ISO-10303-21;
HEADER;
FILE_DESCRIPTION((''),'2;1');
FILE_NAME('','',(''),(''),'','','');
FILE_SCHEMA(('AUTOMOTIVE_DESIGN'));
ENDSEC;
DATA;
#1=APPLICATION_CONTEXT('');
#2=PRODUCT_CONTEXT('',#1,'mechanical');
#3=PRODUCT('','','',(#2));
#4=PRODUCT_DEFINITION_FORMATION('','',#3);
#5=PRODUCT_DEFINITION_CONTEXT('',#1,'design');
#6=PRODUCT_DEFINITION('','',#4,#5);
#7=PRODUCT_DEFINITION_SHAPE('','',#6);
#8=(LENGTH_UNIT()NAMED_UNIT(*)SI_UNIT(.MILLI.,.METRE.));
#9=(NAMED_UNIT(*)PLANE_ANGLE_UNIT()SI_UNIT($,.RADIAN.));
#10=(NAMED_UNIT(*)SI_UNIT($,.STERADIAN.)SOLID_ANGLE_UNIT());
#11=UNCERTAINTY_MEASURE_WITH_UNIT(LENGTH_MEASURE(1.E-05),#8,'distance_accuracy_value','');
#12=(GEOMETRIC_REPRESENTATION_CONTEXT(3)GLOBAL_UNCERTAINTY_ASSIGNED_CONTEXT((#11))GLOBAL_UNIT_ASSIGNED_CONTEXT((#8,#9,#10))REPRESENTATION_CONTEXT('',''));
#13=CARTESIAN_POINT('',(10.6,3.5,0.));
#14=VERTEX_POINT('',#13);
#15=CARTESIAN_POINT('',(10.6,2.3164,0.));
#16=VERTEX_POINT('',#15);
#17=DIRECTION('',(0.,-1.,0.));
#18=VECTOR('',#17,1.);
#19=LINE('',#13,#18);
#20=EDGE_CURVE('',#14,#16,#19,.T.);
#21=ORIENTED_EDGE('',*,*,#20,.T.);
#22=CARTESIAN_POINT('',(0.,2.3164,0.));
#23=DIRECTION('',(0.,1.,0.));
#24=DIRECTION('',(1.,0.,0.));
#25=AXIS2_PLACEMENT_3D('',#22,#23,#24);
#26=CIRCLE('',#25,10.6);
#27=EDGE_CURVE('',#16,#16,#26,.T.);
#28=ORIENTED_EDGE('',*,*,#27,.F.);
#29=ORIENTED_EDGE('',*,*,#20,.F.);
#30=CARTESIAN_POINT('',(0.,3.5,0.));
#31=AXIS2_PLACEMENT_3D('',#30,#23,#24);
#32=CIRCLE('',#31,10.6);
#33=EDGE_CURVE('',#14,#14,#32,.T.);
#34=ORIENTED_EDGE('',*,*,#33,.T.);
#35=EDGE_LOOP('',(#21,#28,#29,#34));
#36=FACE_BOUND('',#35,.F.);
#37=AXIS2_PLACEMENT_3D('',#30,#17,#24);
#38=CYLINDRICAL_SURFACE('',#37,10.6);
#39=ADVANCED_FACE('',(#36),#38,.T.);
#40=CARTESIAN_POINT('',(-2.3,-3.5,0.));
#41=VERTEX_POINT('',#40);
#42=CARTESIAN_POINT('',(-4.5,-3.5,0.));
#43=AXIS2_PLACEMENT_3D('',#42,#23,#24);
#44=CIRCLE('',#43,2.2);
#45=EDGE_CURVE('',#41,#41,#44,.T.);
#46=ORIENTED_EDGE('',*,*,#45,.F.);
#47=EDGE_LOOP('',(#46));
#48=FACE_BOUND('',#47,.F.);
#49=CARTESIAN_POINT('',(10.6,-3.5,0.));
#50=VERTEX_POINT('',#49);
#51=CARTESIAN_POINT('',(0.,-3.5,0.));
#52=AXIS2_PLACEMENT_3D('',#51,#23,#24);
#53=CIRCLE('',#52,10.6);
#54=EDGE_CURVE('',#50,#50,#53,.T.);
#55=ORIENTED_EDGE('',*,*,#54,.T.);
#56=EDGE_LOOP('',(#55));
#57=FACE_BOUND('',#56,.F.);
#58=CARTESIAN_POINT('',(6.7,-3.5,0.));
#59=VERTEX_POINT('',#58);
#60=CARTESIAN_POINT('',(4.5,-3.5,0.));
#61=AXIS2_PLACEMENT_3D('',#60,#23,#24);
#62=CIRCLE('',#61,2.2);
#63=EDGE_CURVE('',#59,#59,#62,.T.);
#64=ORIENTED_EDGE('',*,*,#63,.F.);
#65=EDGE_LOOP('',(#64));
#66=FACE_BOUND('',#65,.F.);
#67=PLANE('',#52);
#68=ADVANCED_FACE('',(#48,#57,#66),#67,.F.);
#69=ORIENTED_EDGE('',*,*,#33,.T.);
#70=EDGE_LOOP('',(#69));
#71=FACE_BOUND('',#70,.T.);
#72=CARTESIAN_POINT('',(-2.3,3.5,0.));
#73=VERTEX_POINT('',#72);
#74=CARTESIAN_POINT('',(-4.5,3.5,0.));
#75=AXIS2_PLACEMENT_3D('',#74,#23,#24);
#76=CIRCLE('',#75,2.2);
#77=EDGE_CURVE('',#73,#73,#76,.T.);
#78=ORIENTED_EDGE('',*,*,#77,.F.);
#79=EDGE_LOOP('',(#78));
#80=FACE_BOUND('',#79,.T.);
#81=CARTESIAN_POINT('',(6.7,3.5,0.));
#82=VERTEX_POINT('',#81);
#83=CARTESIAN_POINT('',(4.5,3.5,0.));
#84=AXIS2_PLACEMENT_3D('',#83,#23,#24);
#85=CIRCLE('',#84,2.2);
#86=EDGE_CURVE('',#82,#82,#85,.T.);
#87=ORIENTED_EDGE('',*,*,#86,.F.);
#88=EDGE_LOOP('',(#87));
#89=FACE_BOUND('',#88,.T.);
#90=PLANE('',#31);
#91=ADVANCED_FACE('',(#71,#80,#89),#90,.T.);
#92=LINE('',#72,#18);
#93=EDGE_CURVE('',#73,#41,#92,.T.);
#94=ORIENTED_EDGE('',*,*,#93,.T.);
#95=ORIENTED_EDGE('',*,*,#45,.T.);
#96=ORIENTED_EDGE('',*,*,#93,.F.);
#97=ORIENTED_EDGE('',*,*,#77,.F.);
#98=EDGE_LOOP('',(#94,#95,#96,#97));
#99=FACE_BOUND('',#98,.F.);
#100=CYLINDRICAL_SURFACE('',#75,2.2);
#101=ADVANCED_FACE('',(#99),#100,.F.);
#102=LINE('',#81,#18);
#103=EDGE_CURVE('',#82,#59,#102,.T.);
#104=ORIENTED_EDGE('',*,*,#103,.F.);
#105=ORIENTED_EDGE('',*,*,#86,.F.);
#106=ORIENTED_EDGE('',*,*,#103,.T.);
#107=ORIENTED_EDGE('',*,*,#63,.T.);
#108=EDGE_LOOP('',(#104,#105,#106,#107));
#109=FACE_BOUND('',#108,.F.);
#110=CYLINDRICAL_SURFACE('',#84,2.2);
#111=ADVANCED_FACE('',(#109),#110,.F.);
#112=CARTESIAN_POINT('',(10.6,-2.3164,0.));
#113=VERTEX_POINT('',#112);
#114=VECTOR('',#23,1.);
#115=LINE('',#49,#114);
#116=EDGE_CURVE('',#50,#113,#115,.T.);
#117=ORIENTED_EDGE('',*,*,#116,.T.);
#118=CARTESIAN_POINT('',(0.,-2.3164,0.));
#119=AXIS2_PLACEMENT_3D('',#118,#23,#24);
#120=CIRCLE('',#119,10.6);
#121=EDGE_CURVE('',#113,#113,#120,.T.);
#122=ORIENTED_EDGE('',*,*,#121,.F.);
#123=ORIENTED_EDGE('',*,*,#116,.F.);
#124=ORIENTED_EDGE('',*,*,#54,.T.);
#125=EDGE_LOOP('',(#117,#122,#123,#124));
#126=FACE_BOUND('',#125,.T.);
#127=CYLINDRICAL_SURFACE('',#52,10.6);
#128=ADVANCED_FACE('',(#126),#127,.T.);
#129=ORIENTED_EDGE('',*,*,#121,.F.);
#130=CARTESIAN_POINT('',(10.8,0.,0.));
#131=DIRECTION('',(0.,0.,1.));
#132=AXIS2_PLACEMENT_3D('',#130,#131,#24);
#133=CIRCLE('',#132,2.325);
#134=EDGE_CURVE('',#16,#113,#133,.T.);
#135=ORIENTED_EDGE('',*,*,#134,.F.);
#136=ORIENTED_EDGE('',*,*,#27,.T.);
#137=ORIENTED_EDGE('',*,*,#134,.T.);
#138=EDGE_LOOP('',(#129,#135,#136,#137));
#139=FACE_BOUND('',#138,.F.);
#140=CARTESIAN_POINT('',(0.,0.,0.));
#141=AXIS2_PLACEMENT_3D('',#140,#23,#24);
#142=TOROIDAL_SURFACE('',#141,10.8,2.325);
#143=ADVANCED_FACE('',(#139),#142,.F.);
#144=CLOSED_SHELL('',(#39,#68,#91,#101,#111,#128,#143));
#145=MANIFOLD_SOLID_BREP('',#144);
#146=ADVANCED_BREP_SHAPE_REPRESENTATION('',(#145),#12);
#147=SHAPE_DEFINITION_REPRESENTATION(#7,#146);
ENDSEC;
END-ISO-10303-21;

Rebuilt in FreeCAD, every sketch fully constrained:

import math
import FreeCAD as App
import Part
import Sketcher

doc = App.newDocument("Part")
body = doc.addObject("PartDesign::Body", "Body")

# Sketch on XY plane
sketch1 = body.newObject("Sketcher::SketchObject", "Sketch")
sketch1.AttachmentSupport = (doc.getObject("XY_Plane"), [""])
sketch1.MapMode = "FlatFace"
sketch1.addGeometry(Part.LineSegment(App.Vector(10.6, -3.5, 0), App.Vector(10.6, -2.3, 0)), False)
sketch1.addGeometry(Part.ArcOfCircle(Part.Circle(App.Vector(10.8, 0, 0), App.Vector(0, 0, 1), 2.3), math.radians(95), math.radians(265)), False)
sketch1.addGeometry(Part.LineSegment(App.Vector(10.6, 2.3, 0), App.Vector(10.6, 3.5, 0)), False)
sketch1.addGeometry(Part.LineSegment(App.Vector(10.6, 3.5, 0), App.Vector(0, 3.5, 0)), False)
sketch1.addGeometry(Part.LineSegment(App.Vector(0, 3.5, 0), App.Vector(0, -3.5, 0)), False)
sketch1.addGeometry(Part.LineSegment(App.Vector(0, -3.5, 0), App.Vector(10.6, -3.5, 0)), False)
sketch1.addConstraint(Sketcher.Constraint("Coincident", 0, 2, 1, 2))
sketch1.addConstraint(Sketcher.Constraint("Coincident", 1, 1, 2, 1))
sketch1.addConstraint(Sketcher.Constraint("Coincident", 2, 2, 3, 1))
sketch1.addConstraint(Sketcher.Constraint("Coincident", 3, 2, 4, 1))
sketch1.addConstraint(Sketcher.Constraint("Coincident", 4, 2, 5, 1))
sketch1.addConstraint(Sketcher.Constraint("Coincident", 5, 2, 0, 1))
sketch1.addConstraint(Sketcher.Constraint("Vertical", 0))
sketch1.addConstraint(Sketcher.Constraint("Vertical", 2))
sketch1.addConstraint(Sketcher.Constraint("Horizontal", 3))
sketch1.addConstraint(Sketcher.Constraint("Vertical", 4))
sketch1.addConstraint(Sketcher.Constraint("Horizontal", 5))
sketch1.addConstraint(Sketcher.Constraint("Symmetric", 3, 2, 4, 2, -1, 1))
sketch1.addConstraint(Sketcher.Constraint("Symmetric", 0, 2, 1, 1, -1))
sketch1.addConstraint(Sketcher.Constraint("Radius", 1, 2.325))
sketch1.addConstraint(Sketcher.Constraint("DistanceX", -1, 1, 1, 3, 10.8))
sketch1.addConstraint(Sketcher.Constraint("DistanceY", -1, 1, 2, 2, 3.5))
sketch1.addConstraint(Sketcher.Constraint("DistanceX", 0, 2, 1, 3, 0.2))
revolution = body.newObject("PartDesign::Revolution", "Revolution")
revolution.Profile = sketch1
revolution.ReferenceAxis = (sketch1, ["V_Axis"])
revolution.Angle = 360

# Sketch on XZ plane
sketch2 = body.newObject("Sketcher::SketchObject", "Sketch001")
sketch2.AttachmentSupport = (doc.getObject("XZ_Plane"), [""])
sketch2.MapMode = "FlatFace"
sketch2.AttachmentOffset = App.Placement(App.Vector(0, 0, -3.5), App.Rotation())
sketch2.addGeometry(Part.Circle(App.Vector(4.5, 0, 0), App.Vector(0, 0, 1), 2.2), False)
sketch2.addGeometry(Part.Circle(App.Vector(-4.5, 0, 0), App.Vector(0, 0, 1), 2.2), False)
sketch2.addConstraint(Sketcher.Constraint("Equal", 0, 1))
sketch2.addConstraint(Sketcher.Constraint("Symmetric", 0, 3, 1, 3, -1, 1))
sketch2.addConstraint(Sketcher.Constraint("PointOnObject", 0, 3, -1))
sketch2.addConstraint(Sketcher.Constraint("Diameter", 0, 4.4))
sketch2.addConstraint(Sketcher.Constraint("DistanceX", -1, 1, 0, 3, 4.5))
pocket1 = body.newObject("PartDesign::Pocket", "Pocket")
pocket1.Profile = sketch2
pocket1.Type = "ThroughAll"
pocket1.Reversed = True

doc.recompute()
